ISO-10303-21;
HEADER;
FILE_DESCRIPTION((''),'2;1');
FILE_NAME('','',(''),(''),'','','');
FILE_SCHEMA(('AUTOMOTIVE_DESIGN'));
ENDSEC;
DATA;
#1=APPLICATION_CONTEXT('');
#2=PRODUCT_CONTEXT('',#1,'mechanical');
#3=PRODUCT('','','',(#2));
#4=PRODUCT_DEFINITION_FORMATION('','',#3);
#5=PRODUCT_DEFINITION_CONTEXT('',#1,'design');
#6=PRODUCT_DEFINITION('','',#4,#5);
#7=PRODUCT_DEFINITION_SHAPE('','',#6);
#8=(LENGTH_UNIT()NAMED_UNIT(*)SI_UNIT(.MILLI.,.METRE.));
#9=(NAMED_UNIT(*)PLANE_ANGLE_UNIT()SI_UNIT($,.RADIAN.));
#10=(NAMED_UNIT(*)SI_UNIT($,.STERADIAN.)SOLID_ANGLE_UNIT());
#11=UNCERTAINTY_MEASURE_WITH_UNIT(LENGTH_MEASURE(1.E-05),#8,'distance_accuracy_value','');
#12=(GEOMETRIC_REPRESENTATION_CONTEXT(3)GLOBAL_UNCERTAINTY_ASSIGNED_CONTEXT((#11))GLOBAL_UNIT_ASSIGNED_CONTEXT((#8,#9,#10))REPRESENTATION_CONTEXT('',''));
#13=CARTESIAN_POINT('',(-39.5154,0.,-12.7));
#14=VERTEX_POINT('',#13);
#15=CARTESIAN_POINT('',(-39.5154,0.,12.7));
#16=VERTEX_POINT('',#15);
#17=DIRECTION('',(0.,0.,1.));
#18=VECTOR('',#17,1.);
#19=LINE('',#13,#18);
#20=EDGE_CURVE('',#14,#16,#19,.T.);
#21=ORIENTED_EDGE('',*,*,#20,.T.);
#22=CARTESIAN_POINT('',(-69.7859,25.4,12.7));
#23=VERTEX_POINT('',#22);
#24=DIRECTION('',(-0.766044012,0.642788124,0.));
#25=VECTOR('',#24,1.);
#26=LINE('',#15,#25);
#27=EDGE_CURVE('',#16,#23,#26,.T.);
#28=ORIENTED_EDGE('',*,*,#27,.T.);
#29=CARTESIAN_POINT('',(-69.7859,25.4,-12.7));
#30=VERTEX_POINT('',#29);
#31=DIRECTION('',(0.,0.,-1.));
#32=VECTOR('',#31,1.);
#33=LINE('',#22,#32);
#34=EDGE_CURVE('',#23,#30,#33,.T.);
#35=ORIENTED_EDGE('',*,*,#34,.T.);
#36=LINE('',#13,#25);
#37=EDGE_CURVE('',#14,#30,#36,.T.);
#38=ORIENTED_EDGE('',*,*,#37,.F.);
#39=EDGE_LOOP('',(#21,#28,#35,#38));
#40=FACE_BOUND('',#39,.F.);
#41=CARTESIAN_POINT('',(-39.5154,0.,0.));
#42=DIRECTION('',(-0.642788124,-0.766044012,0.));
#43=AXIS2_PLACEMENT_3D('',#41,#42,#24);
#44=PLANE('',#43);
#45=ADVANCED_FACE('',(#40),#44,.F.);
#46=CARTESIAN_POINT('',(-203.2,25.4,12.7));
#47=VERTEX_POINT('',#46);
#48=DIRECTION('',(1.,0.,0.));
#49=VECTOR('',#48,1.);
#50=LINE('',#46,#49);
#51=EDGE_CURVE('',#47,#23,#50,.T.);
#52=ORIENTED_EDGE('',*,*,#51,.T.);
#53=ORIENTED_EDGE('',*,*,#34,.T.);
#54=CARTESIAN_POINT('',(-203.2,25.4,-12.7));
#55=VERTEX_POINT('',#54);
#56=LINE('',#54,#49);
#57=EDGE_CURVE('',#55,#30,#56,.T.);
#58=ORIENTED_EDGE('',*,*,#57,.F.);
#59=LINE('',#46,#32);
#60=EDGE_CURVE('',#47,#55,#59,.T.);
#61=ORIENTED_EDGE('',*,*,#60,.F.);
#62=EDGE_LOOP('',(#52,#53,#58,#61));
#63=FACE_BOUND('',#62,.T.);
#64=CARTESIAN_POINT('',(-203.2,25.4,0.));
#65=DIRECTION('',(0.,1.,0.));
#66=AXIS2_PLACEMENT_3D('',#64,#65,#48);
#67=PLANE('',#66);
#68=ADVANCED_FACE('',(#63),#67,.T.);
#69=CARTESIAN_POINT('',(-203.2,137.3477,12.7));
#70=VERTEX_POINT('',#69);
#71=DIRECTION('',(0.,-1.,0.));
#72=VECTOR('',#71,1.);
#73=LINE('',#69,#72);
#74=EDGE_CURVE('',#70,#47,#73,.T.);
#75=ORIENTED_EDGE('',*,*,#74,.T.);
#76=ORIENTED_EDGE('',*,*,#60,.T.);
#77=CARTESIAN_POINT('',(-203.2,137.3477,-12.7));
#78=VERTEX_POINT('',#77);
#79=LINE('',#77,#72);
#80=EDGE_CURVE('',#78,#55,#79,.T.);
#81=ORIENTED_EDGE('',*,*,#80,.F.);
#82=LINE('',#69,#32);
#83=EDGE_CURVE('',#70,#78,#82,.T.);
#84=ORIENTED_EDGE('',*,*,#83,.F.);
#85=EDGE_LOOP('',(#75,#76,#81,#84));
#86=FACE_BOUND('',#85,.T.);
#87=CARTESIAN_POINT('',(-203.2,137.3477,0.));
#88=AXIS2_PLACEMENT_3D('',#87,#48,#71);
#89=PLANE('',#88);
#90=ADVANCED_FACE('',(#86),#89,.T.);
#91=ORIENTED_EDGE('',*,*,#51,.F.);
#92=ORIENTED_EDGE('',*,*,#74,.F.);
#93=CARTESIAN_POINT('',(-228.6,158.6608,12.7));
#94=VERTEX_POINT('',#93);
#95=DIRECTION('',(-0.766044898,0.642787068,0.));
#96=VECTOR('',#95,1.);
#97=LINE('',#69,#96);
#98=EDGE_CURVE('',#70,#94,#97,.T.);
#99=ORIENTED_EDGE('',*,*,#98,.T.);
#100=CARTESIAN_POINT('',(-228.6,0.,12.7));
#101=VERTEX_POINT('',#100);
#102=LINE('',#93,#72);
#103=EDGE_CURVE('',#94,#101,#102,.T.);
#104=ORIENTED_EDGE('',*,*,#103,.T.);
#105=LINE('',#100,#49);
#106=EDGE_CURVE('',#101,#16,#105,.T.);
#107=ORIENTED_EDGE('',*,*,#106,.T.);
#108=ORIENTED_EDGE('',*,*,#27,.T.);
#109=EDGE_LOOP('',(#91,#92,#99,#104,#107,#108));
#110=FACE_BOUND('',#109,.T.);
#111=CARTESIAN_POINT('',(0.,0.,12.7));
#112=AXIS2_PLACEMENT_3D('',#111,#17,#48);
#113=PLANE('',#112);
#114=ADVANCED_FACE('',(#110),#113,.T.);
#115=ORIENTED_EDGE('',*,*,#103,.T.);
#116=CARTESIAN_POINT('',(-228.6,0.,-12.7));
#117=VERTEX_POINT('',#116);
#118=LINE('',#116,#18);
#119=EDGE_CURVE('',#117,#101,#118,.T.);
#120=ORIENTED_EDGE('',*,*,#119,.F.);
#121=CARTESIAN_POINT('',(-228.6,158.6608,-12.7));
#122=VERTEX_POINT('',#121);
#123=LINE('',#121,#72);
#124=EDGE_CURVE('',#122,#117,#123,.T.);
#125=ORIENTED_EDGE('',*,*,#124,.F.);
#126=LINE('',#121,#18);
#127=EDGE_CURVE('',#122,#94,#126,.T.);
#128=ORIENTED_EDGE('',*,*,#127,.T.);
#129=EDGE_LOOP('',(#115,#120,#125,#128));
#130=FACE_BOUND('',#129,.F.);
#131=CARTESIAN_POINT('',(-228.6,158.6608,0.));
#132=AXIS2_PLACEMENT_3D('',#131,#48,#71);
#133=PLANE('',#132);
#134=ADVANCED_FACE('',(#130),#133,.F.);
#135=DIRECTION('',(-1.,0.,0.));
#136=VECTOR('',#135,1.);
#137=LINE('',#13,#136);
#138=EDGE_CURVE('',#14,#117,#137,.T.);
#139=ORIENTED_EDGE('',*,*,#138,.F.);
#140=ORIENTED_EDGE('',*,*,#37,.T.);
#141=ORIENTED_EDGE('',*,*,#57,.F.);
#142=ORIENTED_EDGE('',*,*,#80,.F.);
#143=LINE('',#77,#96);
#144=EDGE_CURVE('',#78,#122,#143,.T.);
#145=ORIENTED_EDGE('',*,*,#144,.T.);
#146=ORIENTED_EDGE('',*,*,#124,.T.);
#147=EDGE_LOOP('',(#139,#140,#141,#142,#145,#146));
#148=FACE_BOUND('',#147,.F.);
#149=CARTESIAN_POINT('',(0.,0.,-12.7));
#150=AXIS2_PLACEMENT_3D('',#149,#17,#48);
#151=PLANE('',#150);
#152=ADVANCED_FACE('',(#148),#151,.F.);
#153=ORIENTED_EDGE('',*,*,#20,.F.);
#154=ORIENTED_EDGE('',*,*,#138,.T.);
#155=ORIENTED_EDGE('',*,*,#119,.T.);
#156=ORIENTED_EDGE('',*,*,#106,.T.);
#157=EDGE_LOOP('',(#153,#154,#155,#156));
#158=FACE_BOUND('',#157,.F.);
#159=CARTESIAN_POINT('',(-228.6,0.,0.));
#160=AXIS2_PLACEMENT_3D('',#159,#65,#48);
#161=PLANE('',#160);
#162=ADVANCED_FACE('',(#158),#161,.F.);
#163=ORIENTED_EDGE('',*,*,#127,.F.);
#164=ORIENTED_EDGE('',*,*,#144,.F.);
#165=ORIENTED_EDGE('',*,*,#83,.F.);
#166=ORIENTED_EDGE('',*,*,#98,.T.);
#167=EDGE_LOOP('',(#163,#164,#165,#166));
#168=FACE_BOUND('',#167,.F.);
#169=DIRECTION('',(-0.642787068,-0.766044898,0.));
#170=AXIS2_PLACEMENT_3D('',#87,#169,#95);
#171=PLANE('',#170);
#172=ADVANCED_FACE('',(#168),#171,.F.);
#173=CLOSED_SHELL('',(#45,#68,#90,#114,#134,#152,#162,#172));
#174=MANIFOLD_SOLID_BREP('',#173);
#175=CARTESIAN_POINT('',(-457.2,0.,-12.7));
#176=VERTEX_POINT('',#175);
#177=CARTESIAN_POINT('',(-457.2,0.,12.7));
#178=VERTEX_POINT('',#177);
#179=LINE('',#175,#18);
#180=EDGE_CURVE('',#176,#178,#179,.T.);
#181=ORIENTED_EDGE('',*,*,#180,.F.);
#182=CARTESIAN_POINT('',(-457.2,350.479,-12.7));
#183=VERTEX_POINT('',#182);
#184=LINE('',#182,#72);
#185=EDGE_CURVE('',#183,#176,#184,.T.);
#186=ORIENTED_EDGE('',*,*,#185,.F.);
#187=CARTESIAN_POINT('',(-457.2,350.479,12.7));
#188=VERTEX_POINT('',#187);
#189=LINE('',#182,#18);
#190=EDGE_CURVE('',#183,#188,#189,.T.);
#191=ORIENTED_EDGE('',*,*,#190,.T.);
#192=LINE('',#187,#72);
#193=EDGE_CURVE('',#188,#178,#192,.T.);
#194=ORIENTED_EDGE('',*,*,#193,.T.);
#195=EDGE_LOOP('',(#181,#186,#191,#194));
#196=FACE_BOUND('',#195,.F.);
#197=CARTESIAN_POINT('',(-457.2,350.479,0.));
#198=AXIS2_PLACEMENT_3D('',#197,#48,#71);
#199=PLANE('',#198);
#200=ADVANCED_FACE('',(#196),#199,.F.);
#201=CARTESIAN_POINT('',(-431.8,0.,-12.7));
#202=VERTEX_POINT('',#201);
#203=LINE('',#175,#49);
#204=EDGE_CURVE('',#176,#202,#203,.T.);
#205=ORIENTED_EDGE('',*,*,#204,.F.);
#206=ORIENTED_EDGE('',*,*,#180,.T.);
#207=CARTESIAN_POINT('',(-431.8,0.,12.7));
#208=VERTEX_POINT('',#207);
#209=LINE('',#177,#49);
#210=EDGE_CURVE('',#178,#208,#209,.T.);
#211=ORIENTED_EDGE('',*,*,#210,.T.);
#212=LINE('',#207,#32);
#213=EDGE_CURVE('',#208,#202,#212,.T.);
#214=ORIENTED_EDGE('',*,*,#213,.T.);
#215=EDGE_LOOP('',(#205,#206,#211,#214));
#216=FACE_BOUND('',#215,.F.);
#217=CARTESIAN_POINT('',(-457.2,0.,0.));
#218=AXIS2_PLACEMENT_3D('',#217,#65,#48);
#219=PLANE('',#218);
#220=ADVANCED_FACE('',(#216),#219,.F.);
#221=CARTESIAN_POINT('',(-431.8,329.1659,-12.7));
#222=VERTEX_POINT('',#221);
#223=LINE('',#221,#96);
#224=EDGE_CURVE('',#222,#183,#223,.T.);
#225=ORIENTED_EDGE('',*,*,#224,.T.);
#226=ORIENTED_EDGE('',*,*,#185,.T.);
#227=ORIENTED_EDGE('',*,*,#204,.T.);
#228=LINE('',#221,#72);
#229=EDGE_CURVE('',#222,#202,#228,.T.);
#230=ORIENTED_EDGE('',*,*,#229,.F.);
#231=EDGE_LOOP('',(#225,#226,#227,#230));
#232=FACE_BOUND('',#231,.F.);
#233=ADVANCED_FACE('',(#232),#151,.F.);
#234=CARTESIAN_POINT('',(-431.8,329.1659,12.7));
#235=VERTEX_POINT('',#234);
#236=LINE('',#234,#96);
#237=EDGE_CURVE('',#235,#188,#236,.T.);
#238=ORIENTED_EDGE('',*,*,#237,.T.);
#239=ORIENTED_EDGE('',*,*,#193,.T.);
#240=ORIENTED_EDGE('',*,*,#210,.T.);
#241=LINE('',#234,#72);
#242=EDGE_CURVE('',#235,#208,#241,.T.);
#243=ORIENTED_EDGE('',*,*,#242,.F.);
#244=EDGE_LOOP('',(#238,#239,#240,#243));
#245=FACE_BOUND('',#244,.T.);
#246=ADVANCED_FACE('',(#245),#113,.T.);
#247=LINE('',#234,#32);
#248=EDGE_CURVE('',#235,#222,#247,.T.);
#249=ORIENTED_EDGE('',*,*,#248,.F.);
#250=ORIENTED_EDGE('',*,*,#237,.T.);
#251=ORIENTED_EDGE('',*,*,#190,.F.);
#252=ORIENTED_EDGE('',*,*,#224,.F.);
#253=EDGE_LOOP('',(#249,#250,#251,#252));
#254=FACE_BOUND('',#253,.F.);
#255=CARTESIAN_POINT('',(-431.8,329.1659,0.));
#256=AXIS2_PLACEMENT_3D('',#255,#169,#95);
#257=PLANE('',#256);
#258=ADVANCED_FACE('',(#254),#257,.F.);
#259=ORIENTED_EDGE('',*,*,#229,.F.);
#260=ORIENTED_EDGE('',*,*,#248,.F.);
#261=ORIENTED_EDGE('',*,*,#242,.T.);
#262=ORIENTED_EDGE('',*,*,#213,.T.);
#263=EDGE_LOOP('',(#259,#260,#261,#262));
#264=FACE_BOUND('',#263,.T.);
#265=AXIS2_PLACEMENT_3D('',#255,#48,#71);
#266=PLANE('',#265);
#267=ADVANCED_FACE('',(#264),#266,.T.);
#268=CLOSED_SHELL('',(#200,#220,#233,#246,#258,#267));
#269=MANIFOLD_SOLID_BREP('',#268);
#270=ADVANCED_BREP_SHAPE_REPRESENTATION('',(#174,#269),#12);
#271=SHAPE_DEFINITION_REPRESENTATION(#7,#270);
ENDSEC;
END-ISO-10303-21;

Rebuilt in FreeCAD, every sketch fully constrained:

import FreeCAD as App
import Part
import Sketcher
from FreeCAD import Vector
Q = App.Units.Quantity


def add_polygon(sketch, points):
    """Adds a closed chain of lines whose ends are joined by coincident constraints."""
    first, n = sketch.GeometryCount, len(points)
    for a, b in zip(points, points[1:] + points[:1]):
        sketch.addGeometry(Part.LineSegment(App.Vector(*a, 0), App.Vector(*b, 0)), False)
    for i in range(n):
        sketch.addConstraint(Sketcher.Constraint("Coincident", first + i, 2, first + (i + 1) % n, 1))

doc = App.newDocument("Part")
params = doc.addObject("Spreadsheet::Sheet", "Params")
for row, (alias, value) in enumerate([
    ("sketch1_width", "1 in"),
    ("pad1_length", "1 in"),
], start=1):
    params.set(f"A{row}", alias)
    params.set(f"B{row}", "=" + value)
    params.setAlias(f"B{row}", alias)

body = doc.addObject("PartDesign::Body", "Body")
body.AllowCompound = True

# Sketch on XY plane
sketch1 = body.newObject("Sketcher::SketchObject", "Sketch")
sketch1.AttachmentSupport = (doc.getObject("XY_Plane"), [""])
sketch1.MapMode = "FlatFace"
add_polygon(sketch1, [(-432, 329), (-457, 350), (-457, 0), (-432, 0)])  # lines 0-3
add_polygon(sketch1, [(-203, 137), (-229, 159), (-229, 0), (-40, 0), (-70, 25), (-203, 25)])  # lines 4-9
sketch1.addConstraint([
    Sketcher.Constraint("Vertical", 1),
    Sketcher.Constraint("Horizontal", 2),
    Sketcher.Constraint("Vertical", 3),
    Sketcher.Constraint("Vertical", 5),
    Sketcher.Constraint("Horizontal", 6),
    Sketcher.Constraint("Horizontal", 8),
    Sketcher.Constraint("Vertical", 9),
    Sketcher.Constraint("PointOnObject", 1, 2, -1),
    Sketcher.Constraint("PointOnObject", 5, 2, -1),
    Sketcher.Constraint("Parallel", 0, 4),
    Sketcher.Constraint("Parallel", 4, 7),
    Sketcher.Constraint("Equal", 0, 4),
    Sketcher.Constraint("DistanceX", 2, 1, 2, 2, Q("1 in")),
    Sketcher.Constraint("DistanceY", -1, 1, 7, 2, Q("1 in")),
    Sketcher.Constraint("DistanceY", 5, 2, 5, 1, Q("6.2465 in")),
    Sketcher.Constraint("DistanceX", 0, 2, -1, 1, Q("18 in")),
    Sketcher.Constraint("DistanceX", 4, 2, -1, 1, Q("9 in")),
    Sketcher.Constraint("Angle", 0, Q("140 deg")),
    Sketcher.Constraint("DistanceY", 1, 2, 1, 1, 350.479),
    Sketcher.Constraint("DistanceX", 8, 2, 6, 2, 163.6846),
])
sketch1.setExpression("Constraints[22]", "Params.sketch1_width")
pad1 = body.newObject("PartDesign::Pad", "Pad")
pad1.Profile = sketch1
pad1.setExpression("Length", "Params.pad1_length")
pad1.Midplane = True

doc.recompute()
